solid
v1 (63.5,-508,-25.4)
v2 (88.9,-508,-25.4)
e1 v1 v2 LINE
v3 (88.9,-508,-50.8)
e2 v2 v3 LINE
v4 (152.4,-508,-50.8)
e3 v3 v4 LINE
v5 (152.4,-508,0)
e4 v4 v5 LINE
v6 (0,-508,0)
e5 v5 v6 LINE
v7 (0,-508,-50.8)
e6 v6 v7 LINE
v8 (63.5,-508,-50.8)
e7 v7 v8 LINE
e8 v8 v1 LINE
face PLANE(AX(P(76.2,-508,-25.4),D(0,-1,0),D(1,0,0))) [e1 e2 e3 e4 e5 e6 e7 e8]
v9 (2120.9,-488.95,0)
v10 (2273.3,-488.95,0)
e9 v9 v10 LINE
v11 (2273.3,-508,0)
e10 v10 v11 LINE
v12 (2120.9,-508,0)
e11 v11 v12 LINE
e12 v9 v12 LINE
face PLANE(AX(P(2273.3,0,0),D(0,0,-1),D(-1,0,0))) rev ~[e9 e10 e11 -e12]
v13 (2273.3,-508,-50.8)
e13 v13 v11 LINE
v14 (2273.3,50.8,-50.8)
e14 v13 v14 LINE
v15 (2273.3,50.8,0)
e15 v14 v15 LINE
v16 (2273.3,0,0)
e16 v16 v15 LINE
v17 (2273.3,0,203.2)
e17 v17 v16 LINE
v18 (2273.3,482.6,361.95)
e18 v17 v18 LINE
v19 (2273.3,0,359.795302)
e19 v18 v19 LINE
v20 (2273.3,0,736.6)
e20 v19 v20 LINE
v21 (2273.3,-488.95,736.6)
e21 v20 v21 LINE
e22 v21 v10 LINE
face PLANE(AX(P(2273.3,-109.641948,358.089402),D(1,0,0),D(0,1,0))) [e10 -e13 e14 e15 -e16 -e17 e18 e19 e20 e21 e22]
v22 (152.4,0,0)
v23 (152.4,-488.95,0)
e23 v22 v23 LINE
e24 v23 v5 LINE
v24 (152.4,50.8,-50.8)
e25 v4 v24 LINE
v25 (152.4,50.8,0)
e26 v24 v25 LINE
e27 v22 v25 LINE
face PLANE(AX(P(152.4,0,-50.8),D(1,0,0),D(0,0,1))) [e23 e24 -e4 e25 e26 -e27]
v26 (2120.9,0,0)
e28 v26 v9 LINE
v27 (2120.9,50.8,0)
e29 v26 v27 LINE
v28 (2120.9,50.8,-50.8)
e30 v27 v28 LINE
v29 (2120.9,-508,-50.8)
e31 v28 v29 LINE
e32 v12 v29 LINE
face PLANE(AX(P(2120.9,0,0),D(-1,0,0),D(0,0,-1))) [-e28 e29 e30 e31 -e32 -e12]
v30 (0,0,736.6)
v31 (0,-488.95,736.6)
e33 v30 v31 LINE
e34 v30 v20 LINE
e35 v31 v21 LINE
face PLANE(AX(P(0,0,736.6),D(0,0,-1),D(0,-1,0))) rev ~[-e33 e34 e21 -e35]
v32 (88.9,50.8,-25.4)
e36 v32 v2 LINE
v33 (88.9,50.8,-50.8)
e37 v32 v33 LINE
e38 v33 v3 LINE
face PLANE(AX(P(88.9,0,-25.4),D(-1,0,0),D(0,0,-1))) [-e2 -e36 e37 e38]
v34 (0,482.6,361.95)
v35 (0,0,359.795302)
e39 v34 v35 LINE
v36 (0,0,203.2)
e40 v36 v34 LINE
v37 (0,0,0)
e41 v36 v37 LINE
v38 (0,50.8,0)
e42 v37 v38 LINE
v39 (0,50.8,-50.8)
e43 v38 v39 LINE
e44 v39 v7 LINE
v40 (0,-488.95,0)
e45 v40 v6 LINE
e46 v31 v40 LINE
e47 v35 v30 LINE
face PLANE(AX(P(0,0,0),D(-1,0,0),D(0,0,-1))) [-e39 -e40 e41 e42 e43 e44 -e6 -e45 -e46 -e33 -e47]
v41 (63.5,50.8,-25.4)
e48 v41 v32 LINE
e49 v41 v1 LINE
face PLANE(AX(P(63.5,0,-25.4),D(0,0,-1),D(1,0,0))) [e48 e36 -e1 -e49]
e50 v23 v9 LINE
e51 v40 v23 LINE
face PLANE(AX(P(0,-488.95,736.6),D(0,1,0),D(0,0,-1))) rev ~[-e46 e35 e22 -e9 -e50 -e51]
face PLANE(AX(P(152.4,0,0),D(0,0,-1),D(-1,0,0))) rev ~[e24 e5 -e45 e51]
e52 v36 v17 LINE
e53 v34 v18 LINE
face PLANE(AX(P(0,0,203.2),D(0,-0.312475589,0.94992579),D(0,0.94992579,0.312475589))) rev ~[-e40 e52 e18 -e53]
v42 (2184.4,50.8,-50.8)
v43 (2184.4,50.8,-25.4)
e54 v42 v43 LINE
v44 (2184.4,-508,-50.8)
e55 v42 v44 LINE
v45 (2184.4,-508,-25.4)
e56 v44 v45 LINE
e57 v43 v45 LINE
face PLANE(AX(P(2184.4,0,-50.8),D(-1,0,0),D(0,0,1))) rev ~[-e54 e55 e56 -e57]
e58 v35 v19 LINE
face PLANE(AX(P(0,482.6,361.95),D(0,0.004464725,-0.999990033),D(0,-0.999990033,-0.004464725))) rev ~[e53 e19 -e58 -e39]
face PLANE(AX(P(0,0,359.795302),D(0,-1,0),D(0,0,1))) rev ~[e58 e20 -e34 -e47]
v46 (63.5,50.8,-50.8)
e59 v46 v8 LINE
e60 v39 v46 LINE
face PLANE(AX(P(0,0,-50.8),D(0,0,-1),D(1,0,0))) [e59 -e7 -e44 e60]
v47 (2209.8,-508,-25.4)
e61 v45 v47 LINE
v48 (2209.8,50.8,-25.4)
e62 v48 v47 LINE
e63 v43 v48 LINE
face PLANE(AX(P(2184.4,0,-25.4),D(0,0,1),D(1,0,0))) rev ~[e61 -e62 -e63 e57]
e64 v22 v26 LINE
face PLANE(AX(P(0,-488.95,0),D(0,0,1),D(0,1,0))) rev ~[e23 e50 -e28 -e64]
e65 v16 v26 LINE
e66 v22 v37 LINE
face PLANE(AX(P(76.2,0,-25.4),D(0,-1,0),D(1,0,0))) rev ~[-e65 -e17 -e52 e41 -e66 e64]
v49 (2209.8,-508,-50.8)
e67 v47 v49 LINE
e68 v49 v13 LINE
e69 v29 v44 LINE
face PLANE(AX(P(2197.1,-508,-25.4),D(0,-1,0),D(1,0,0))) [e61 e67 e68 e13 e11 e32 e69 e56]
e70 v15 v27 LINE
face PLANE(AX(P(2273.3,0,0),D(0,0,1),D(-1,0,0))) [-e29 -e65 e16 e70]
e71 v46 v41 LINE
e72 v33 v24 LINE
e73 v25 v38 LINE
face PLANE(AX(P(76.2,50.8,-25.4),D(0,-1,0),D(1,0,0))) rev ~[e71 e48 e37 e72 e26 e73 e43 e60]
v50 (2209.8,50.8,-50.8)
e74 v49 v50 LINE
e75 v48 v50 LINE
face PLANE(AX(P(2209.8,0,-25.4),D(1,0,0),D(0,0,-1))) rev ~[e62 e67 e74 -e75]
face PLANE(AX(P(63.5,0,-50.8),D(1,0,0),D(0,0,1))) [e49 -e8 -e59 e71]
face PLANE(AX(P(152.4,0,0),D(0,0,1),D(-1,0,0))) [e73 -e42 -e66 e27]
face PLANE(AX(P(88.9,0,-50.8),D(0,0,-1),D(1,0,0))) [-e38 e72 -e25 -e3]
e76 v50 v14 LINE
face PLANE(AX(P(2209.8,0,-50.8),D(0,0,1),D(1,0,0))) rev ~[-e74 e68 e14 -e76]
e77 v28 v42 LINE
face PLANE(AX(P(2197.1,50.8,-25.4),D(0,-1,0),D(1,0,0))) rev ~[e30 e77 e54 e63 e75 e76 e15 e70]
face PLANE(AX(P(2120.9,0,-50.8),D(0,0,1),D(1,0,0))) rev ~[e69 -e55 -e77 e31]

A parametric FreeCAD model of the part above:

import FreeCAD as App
import Part
import Sketcher

V = App.Vector
Q = App.Units.Quantity

doc = App.newDocument("Part")
body = doc.addObject("PartDesign::Body", "Body")

sketch1 = body.newObject("Sketcher::SketchObject", "Sketch")
sketch1.AttachmentSupport = (doc.getObject("YZ_Plane"), [""])
sketch1.MapMode = "FlatFace"
sketch1.addGeometry(Part.LineSegment(V(-489, 0, 0), V(0, 0, 0)), False)
sketch1.addGeometry(Part.LineSegment(V(0, 0, 0), V(0, 203, 0)), False)
sketch1.addGeometry(Part.LineSegment(V(0, 203, 0), V(483, 362, 0)), False)
sketch1.addGeometry(Part.LineSegment(V(483, 362, 0), V(0, 360, 0)), False)
sketch1.addGeometry(Part.LineSegment(V(0, 360, 0), V(0, 737, 0)), False)
sketch1.addGeometry(Part.LineSegment(V(0, 737, 0), V(-489, 737, 0)), False)
sketch1.addGeometry(Part.LineSegment(V(-489, 737, 0), V(-489, 0, 0)), False)
sketch1.addConstraint(Sketcher.Constraint("Coincident", 0, 2, 1, 1))
sketch1.addConstraint(Sketcher.Constraint("Coincident", 1, 2, 2, 1))
sketch1.addConstraint(Sketcher.Constraint("Coincident", 2, 2, 3, 1))
sketch1.addConstraint(Sketcher.Constraint("Coincident", 3, 2, 4, 1))
sketch1.addConstraint(Sketcher.Constraint("Coincident", 4, 2, 5, 1))
sketch1.addConstraint(Sketcher.Constraint("Coincident", 5, 2, 6, 1))
sketch1.addConstraint(Sketcher.Constraint("Coincident", 6, 2, 0, 1))
sketch1.addConstraint(Sketcher.Constraint("Horizontal", 0))
sketch1.addConstraint(Sketcher.Constraint("Vertical", 1))
sketch1.addConstraint(Sketcher.Constraint("Vertical", 4))
sketch1.addConstraint(Sketcher.Constraint("Horizontal", 5))
sketch1.addConstraint(Sketcher.Constraint("Vertical", 6))
sketch1.addConstraint(Sketcher.Constraint("Coincident", 0, 2, -1, 1))
sketch1.addConstraint(Sketcher.Constraint("PointOnObject", 3, 2, -2))
sketch1.addConstraint(Sketcher.Constraint("DistanceY", 1, 1, 1, 2, Q("8 in")))
sketch1.addConstraint(Sketcher.Constraint("DistanceY", 6, 2, 6, 1, Q("29 in")))
sketch1.addConstraint(Sketcher.Constraint("DistanceX", -1, 1, 2, 2, Q("19 in")))
sketch1.addConstraint(Sketcher.Constraint("DistanceX", 0, 1, 0, 2, Q("19.25 in")))
sketch1.addConstraint(Sketcher.Constraint("DistanceY", -1, 1, 2, 2, Q("14.25 in")))
sketch1.addConstraint(Sketcher.Constraint("DistanceY", 4, 1, 4, 2, Q("376.804698 mm")))
pad1 = body.newObject("PartDesign::Pad", "Pad")
pad1.Profile = sketch1
pad1.Length = Q("89.5 in")

sketch2 = body.newObject("Sketcher::SketchObject", "Sketch001")
sketch2.AttachmentSupport = (doc.getObject("XZ_Plane"), [""])
sketch2.MapMode = "FlatFace"
sketch2.addGeometry(Part.LineSegment(V(0, 0, 0), V(0, -51, 0)), False)
sketch2.addGeometry(Part.LineSegment(V(0, -51, 0), V(64, -51, 0)), False)
sketch2.addGeometry(Part.LineSegment(V(64, -51, 0), V(64, -25, 0)), False)
sketch2.addGeometry(Part.LineSegment(V(64, -25, 0), V(89, -25, 0)), False)
sketch2.addGeometry(Part.LineSegment(V(89, -25, 0), V(89, -51, 0)), False)
sketch2.addGeometry(Part.LineSegment(V(89, -51, 0), V(152, -51, 0)), False)
sketch2.addGeometry(Part.LineSegment(V(152, -51, 0), V(152, 0, 0)), False)
sketch2.addGeometry(Part.LineSegment(V(152, 0, 0), V(0, 0, 0)), False)
sketch2.addGeometry(Part.LineSegment(V(2273, -51, 0), V(2273, 0, 0)), False)
sketch2.addGeometry(Part.LineSegment(V(2273, 0, 0), V(2121, 0, 0)), False)
sketch2.addGeometry(Part.LineSegment(V(2121, 0, 0), V(2121, -51, 0)), False)
sketch2.addGeometry(Part.LineSegment(V(2121, -51, 0), V(2184, -51, 0)), False)
sketch2.addGeometry(Part.LineSegment(V(2184, -51, 0), V(2184, -25, 0)), False)
sketch2.addGeometry(Part.LineSegment(V(2184, -25, 0), V(2210, -25, 0)), False)
sketch2.addGeometry(Part.LineSegment(V(2210, -25, 0), V(2210, -51, 0)), False)
sketch2.addGeometry(Part.LineSegment(V(2210, -51, 0), V(2273, -51, 0)), False)
sketch2.addConstraint(Sketcher.Constraint("Coincident", 0, 2, 1, 1))
sketch2.addConstraint(Sketcher.Constraint("Coincident", 1, 2, 2, 1))
sketch2.addConstraint(Sketcher.Constraint("Coincident", 2, 2, 3, 1))
sketch2.addConstraint(Sketcher.Constraint("Coincident", 3, 2, 4, 1))
sketch2.addConstraint(Sketcher.Constraint("Coincident", 4, 2, 5, 1))
sketch2.addConstraint(Sketcher.Constraint("Coincident", 5, 2, 6, 1))
sketch2.addConstraint(Sketcher.Constraint("Coincident", 6, 2, 7, 1))
sketch2.addConstraint(Sketcher.Constraint("Coincident", 7, 2, 0, 1))
sketch2.addConstraint(Sketcher.Constraint("Coincident", 8, 2, 9, 1))
sketch2.addConstraint(Sketcher.Constraint("Coincident", 9, 2, 10, 1))
sketch2.addConstraint(Sketcher.Constraint("Coincident", 10, 2, 11, 1))
sketch2.addConstraint(Sketcher.Constraint("Coincident", 11, 2, 12, 1))
sketch2.addConstraint(Sketcher.Constraint("Coincident", 12, 2, 13, 1))
sketch2.addConstraint(Sketcher.Constraint("Coincident", 13, 2, 14, 1))
sketch2.addConstraint(Sketcher.Constraint("Coincident", 14, 2, 15, 1))
sketch2.addConstraint(Sketcher.Constraint("Coincident", 15, 2, 8, 1))
sketch2.addConstraint(Sketcher.Constraint("Vertical", 0))
sketch2.addConstraint(Sketcher.Constraint("Horizontal", 1))
sketch2.addConstraint(Sketcher.Constraint("Vertical", 2))
sketch2.addConstraint(Sketcher.Constraint("Horizontal", 3))
sketch2.addConstraint(Sketcher.Constraint("Vertical", 4))
sketch2.addConstraint(Sketcher.Constraint("Horizontal", 5))
sketch2.addConstraint(Sketcher.Constraint("Vertical", 6))
sketch2.addConstraint(Sketcher.Constraint("Horizontal", 7))
sketch2.addConstraint(Sketcher.Constraint("Vertical", 8))
sketch2.addConstraint(Sketcher.Constraint("Horizontal", 9))
sketch2.addConstraint(Sketcher.Constraint("Vertical", 10))
sketch2.addConstraint(Sketcher.Constraint("Horizontal", 11))
sketch2.addConstraint(Sketcher.Constraint("Vertical", 12))
sketch2.addConstraint(Sketcher.Constraint("Horizontal", 13))
sketch2.addConstraint(Sketcher.Constraint("Vertical", 14))
sketch2.addConstraint(Sketcher.Constraint("Horizontal", 15))
sketch2.addConstraint(Sketcher.Constraint("Coincident", 7, 2, -1, 1))
sketch2.addConstraint(Sketcher.Constraint("PointOnObject", 8, 2, -1))
sketch2.addConstraint(Sketcher.Constraint("Horizontal", 1, 2, 4, 2))
sketch2.addConstraint(Sketcher.Constraint("Horizontal", 5, 2, 10, 2))
sketch2.addConstraint(Sketcher.Constraint("Horizontal", 3, 2, 12, 2))
sketch2.addConstraint(Sketcher.Constraint("Horizontal", 11, 2, 14, 2))
sketch2.addConstraint(Sketcher.Constraint("Equal", 1, 5))
sketch2.addConstraint(Sketcher.Constraint("Equal", 7, 9))
sketch2.addConstraint(Sketcher.Constraint("Equal", 5, 11))
sketch2.addConstraint(Sketcher.Constraint("Equal", 3, 13))
sketch2.addConstraint(Sketcher.Constraint("Equal", 13, 2))
sketch2.addConstraint(Sketcher.Constraint("DistanceX", 3, 1, 3, 2, Q("1 in")))
sketch2.addConstraint(Sketcher.Constraint("DistanceX", 7, 2, 7, 1, Q("6 in")))
sketch2.addConstraint(Sketcher.Constraint("DistanceY", 0, 2, 0, 1, Q("2 in")))
sketch2.addConstraint(Sketcher.Constraint("DistanceX", -1, 1, 11, 2, Q("86 in")))
pad2 = body.newObject("PartDesign::Pad", "Pad001")
pad2.Profile = sketch2
pad2.Type = "TwoLengths"
pad2.Length = Q("20 in")
pad2.Length2 = Q("2 in")

doc.recompute()
